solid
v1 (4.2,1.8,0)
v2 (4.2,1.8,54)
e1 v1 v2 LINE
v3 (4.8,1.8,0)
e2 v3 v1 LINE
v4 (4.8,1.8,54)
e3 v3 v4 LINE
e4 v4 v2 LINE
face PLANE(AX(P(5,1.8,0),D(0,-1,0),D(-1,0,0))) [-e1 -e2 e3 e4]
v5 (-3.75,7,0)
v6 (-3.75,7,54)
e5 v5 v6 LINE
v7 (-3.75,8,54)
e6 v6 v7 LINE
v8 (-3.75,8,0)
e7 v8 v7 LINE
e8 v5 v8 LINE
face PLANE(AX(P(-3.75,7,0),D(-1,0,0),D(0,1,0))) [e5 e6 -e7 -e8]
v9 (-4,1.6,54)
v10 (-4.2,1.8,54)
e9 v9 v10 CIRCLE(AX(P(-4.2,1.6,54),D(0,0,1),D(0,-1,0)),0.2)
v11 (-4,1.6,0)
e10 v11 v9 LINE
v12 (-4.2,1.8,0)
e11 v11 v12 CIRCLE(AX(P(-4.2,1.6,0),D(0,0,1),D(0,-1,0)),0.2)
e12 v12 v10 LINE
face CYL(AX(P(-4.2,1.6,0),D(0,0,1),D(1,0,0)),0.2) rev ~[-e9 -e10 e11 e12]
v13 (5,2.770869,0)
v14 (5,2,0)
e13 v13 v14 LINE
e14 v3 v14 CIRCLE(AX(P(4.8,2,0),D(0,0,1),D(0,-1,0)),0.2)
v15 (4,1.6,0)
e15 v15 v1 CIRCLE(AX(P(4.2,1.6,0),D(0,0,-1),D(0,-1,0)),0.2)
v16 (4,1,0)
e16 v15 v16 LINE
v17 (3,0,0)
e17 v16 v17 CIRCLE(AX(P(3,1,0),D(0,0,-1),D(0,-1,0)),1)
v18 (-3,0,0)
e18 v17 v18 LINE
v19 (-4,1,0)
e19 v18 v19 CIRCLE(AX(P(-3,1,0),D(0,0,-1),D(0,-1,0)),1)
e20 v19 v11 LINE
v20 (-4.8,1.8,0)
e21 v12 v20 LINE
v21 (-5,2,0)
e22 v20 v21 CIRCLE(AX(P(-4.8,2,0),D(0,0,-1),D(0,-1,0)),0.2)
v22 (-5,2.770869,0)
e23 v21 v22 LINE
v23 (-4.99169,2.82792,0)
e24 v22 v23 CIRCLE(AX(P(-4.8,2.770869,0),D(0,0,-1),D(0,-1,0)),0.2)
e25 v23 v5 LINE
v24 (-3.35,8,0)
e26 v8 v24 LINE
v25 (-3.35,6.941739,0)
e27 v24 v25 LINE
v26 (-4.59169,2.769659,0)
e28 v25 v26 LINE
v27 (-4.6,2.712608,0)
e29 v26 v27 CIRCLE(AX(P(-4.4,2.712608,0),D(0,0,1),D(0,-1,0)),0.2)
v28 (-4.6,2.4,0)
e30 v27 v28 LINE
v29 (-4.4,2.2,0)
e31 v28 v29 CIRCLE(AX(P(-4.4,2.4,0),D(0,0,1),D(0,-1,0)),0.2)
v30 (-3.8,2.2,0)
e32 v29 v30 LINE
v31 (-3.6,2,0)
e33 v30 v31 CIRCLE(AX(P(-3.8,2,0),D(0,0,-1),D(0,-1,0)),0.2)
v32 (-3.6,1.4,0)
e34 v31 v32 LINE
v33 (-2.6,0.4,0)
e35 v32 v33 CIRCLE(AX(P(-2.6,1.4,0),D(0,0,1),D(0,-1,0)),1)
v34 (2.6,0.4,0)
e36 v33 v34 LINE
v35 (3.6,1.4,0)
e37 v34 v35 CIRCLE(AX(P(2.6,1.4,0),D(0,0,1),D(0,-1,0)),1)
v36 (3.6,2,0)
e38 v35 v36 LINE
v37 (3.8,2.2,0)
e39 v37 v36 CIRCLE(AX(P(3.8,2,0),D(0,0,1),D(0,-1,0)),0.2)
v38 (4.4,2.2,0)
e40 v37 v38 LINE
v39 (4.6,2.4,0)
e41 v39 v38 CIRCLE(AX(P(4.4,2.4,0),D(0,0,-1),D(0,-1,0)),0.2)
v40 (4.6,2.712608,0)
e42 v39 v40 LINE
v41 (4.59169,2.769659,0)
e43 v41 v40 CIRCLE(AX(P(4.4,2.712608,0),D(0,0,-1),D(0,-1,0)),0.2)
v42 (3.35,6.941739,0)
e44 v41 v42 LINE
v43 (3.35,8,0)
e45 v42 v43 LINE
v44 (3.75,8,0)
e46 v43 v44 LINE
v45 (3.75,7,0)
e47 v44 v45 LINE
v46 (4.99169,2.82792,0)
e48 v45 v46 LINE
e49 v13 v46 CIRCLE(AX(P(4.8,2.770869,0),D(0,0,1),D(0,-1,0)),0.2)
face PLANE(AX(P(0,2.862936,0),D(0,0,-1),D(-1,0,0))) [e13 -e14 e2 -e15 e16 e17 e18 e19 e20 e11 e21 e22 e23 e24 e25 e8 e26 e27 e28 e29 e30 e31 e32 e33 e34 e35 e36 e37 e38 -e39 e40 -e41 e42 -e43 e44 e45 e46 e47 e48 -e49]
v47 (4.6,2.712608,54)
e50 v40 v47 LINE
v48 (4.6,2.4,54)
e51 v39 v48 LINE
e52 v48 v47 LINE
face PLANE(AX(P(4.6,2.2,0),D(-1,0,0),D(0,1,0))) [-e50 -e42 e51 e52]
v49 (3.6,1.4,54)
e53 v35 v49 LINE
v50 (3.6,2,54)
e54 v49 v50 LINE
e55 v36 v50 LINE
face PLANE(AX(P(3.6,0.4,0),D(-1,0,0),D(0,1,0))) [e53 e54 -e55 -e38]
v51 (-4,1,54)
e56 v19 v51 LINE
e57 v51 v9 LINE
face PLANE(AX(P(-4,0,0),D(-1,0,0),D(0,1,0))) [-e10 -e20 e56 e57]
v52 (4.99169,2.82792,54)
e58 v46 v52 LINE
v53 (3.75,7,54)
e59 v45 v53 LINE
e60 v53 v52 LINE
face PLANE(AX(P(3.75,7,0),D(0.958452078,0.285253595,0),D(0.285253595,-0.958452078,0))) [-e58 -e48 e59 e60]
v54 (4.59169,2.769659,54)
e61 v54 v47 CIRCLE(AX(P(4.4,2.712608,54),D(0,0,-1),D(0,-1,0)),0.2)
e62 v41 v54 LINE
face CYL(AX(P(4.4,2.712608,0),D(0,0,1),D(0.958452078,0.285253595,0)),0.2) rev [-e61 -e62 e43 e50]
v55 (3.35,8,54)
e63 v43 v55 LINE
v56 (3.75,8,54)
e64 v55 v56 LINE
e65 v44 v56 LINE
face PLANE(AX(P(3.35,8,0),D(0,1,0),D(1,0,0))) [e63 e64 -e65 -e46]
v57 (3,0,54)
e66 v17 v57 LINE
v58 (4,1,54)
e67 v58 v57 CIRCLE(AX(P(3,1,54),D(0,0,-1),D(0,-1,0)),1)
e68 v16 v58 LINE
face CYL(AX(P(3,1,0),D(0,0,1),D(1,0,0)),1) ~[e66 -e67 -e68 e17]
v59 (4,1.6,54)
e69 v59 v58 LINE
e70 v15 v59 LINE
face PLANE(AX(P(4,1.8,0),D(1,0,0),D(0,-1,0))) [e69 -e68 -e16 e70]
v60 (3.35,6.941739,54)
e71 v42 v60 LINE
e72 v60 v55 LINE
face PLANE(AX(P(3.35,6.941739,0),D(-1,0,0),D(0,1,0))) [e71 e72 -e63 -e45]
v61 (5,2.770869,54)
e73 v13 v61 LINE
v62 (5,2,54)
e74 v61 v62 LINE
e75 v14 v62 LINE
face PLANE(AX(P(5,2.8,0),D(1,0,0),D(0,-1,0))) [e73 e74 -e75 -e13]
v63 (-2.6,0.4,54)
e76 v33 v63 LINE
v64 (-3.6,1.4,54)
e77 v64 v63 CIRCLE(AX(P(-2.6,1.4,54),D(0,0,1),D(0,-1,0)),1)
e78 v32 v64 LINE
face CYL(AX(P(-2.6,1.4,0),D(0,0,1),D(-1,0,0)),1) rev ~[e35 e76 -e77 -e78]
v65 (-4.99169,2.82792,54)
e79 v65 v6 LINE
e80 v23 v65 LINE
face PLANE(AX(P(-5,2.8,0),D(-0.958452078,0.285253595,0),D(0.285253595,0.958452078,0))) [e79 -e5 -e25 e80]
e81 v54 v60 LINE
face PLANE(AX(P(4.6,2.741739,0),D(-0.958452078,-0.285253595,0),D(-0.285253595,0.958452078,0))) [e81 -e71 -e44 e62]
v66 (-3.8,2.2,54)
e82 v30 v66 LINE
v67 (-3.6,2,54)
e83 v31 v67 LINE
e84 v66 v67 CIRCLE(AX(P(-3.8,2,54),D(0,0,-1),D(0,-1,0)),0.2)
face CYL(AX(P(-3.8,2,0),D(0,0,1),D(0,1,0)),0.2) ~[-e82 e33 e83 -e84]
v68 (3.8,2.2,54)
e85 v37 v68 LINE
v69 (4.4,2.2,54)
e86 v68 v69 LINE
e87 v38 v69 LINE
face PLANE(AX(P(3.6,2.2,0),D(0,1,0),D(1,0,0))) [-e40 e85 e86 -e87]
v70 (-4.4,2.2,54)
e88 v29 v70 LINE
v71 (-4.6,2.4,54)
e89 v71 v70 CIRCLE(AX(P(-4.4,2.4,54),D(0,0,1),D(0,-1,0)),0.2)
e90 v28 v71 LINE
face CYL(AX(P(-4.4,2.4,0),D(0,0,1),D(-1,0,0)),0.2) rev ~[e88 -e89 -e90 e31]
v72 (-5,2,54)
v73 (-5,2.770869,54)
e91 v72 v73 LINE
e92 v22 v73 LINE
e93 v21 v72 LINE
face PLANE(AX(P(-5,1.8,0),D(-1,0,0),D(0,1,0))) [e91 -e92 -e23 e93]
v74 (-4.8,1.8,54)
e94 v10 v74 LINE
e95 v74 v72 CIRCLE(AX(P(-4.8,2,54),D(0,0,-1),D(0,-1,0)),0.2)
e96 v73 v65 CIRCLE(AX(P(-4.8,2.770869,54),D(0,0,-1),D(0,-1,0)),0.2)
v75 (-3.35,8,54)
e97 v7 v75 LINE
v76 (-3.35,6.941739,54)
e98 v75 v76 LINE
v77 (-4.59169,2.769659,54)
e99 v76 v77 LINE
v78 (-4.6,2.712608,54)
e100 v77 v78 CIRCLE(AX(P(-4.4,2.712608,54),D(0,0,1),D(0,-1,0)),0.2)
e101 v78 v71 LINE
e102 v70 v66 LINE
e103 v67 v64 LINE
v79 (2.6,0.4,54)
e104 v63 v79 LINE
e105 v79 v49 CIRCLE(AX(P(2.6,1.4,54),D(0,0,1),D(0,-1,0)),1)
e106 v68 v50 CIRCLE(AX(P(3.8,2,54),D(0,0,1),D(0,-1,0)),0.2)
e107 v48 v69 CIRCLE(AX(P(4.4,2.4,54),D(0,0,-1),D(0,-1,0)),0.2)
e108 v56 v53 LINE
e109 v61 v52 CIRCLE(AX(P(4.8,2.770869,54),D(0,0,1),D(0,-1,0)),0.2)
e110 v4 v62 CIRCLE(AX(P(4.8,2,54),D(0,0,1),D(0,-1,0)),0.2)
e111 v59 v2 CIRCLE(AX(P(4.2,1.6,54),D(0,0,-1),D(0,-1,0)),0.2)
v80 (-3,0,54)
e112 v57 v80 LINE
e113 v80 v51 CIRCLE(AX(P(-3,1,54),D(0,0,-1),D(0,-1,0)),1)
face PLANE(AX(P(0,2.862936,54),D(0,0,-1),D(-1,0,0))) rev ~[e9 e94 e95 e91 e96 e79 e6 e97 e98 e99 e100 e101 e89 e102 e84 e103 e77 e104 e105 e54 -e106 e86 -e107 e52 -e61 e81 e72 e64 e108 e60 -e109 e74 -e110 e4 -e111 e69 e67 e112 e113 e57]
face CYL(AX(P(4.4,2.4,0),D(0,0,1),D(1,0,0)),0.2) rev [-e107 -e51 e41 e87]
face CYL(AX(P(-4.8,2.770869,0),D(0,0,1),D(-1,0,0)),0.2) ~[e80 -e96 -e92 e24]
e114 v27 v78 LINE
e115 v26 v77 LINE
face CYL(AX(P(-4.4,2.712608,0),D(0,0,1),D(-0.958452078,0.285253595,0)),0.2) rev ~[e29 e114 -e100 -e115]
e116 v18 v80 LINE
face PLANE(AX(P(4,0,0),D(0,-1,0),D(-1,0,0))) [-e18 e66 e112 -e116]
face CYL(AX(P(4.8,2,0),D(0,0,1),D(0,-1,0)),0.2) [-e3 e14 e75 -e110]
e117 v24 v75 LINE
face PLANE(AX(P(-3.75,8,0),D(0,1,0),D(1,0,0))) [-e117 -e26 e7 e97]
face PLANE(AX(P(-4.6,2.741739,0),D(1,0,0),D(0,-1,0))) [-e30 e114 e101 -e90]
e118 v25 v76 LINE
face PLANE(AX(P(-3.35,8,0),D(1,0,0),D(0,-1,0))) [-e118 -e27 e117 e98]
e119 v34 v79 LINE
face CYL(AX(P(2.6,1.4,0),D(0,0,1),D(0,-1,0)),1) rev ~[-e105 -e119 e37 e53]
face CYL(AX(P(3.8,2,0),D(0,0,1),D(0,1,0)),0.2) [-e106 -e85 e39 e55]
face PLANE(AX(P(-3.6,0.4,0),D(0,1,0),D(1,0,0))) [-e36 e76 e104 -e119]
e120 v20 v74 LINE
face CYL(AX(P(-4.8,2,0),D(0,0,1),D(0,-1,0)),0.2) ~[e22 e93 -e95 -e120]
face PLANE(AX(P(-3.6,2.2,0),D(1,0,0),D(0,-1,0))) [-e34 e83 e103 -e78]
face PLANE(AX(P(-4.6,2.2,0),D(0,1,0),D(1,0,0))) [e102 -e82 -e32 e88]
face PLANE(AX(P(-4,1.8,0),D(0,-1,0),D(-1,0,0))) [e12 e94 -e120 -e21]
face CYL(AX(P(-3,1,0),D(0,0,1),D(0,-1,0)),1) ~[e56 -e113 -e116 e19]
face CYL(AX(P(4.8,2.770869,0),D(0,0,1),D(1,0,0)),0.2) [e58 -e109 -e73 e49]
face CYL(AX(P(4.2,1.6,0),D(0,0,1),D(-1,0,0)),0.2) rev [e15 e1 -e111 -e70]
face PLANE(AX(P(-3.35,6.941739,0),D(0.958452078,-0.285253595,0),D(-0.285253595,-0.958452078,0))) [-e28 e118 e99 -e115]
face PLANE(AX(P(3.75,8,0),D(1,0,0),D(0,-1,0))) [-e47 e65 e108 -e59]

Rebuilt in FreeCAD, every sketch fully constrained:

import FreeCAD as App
import Part
import Sketcher

V = App.Vector
Q = App.Units.Quantity


def edges_at(feature, points):
    """Names of the edges that pass closest to the given points."""
    edges = feature.Shape.Edges
    near = lambda p: min(range(len(edges)), key=lambda i: edges[i].distToShape(Part.Vertex(*p))[0])
    return sorted({f"Edge{near(p) + 1}" for p in points})

doc = App.newDocument("Part")
params = doc.addObject("Spreadsheet::Sheet", "Params")
for row, (alias, value) in enumerate([
    ("sketch1_width", "1 mm"),
    ("sketch1_width2", "8 mm"),
    ("sketch1_width3", "0.4 mm"),
    ("sketch1_height", "1.8 mm"),
    ("pad1_length", "54 mm"),
    ("fillet_radius", "1 mm"),
    ("fillet2_radius", "0.2 mm"),
], start=1):
    params.set(f"A{row}", alias)
    params.set(f"B{row}", "=" + value)
    params.setAlias(f"B{row}", alias)

body = doc.addObject("PartDesign::Body", "Body")

# Sketch on XY plane
sketch1 = body.newObject("Sketcher::SketchObject", "Sketch")
sketch1.AttachmentSupport = (doc.getObject("XY_Plane"), [""])
sketch1.MapMode = "FlatFace"
sketch1.addGeometry(Part.LineSegment(V(3.75, 7, 0), V(3.75, 8, 0)), False)
sketch1.addGeometry(Part.LineSegment(V(3.75, 8, 0), V(3.35, 8, 0)), False)
sketch1.addGeometry(Part.LineSegment(V(3.35, 8, 0), V(3.35, 6.94, 0)), False)
sketch1.addGeometry(Part.LineSegment(V(3.35, 6.94, 0), V(4.6, 2.74, 0)), False)
sketch1.addGeometry(Part.LineSegment(V(4.6, 2.74, 0), V(4.6, 2.2, 0)), False)
sketch1.addGeometry(Part.LineSegment(V(4.6, 2.2, 0), V(3.6, 2.2, 0)), False)
sketch1.addGeometry(Part.LineSegment(V(3.6, 2.2, 0), V(3.6, 0.4, 0)), False)
sketch1.addGeometry(Part.LineSegment(V(3.6, 0.4, 0), V(-3.6, 0.4, 0)), False)
sketch1.addGeometry(Part.LineSegment(V(-3.6, 0.4, 0), V(-3.6, 2.2, 0)), False)
sketch1.addGeometry(Part.LineSegment(V(-3.6, 2.2, 0), V(-4.6, 2.2, 0)), False)
sketch1.addGeometry(Part.LineSegment(V(-4.6, 2.2, 0), V(-4.6, 2.74, 0)), False)
sketch1.addGeometry(Part.LineSegment(V(-4.6, 2.74, 0), V(-3.35, 6.94, 0)), False)
sketch1.addGeometry(Part.LineSegment(V(-3.35, 6.94, 0), V(-3.35, 8, 0)), False)
sketch1.addGeometry(Part.LineSegment(V(-3.35, 8, 0), V(-3.75, 8, 0)), False)
sketch1.addGeometry(Part.LineSegment(V(-3.75, 8, 0), V(-3.75, 7, 0)), False)
sketch1.addGeometry(Part.LineSegment(V(-3.75, 7, 0), V(-5, 2.8, 0)), False)
sketch1.addGeometry(Part.LineSegment(V(-5, 2.8, 0), V(-5, 1.8, 0)), False)
sketch1.addGeometry(Part.LineSegment(V(-5, 1.8, 0), V(-4, 1.8, 0)), False)
sketch1.addGeometry(Part.LineSegment(V(-4, 1.8, 0), V(-4, 0, 0)), False)
sketch1.addGeometry(Part.LineSegment(V(-4, 0, 0), V(4, 0, 0)), False)
sketch1.addGeometry(Part.LineSegment(V(4, 0, 0), V(4, 1.8, 0)), False)
sketch1.addGeometry(Part.LineSegment(V(4, 1.8, 0), V(5, 1.8, 0)), False)
sketch1.addGeometry(Part.LineSegment(V(5, 1.8, 0), V(5, 2.8, 0)), False)
sketch1.addGeometry(Part.LineSegment(V(5, 2.8, 0), V(3.75, 7, 0)), False)
sketch1.addConstraint(Sketcher.Constraint("Coincident", 0, 2, 1, 1))
sketch1.addConstraint(Sketcher.Constraint("Coincident", 1, 2, 2, 1))
sketch1.addConstraint(Sketcher.Constraint("Coincident", 2, 2, 3, 1))
sketch1.addConstraint(Sketcher.Constraint("Coincident", 3, 2, 4, 1))
sketch1.addConstraint(Sketcher.Constraint("Coincident", 4, 2, 5, 1))
sketch1.addConstraint(Sketcher.Constraint("Coincident", 5, 2, 6, 1))
sketch1.addConstraint(Sketcher.Constraint("Coincident", 6, 2, 7, 1))
sketch1.addConstraint(Sketcher.Constraint("Coincident", 7, 2, 8, 1))
sketch1.addConstraint(Sketcher.Constraint("Coincident", 8, 2, 9, 1))
sketch1.addConstraint(Sketcher.Constraint("Coincident", 9, 2, 10, 1))
sketch1.addConstraint(Sketcher.Constraint("Coincident", 10, 2, 11, 1))
sketch1.addConstraint(Sketcher.Constraint("Coincident", 11, 2, 12, 1))
sketch1.addConstraint(Sketcher.Constraint("Coincident", 12, 2, 13, 1))
sketch1.addConstraint(Sketcher.Constraint("Coincident", 13, 2, 14, 1))
sketch1.addConstraint(Sketcher.Constraint("Coincident", 14, 2, 15, 1))
sketch1.addConstraint(Sketcher.Constraint("Coincident", 15, 2, 16, 1))
sketch1.addConstraint(Sketcher.Constraint("Coincident", 16, 2, 17, 1))
sketch1.addConstraint(Sketcher.Constraint("Coincident", 17, 2, 18, 1))
sketch1.addConstraint(Sketcher.Constraint("Coincident", 18, 2, 19, 1))
sketch1.addConstraint(Sketcher.Constraint("Coincident", 19, 2, 20, 1))
sketch1.addConstraint(Sketcher.Constraint("Coincident", 20, 2, 21, 1))
sketch1.addConstraint(Sketcher.Constraint("Coincident", 21, 2, 22, 1))
sketch1.addConstraint(Sketcher.Constraint("Coincident", 22, 2, 23, 1))
sketch1.addConstraint(Sketcher.Constraint("Coincident", 23, 2, 0, 1))
sketch1.addConstraint(Sketcher.Constraint("Vertical", 0))
sketch1.addConstraint(Sketcher.Constraint("Horizontal", 1))
sketch1.addConstraint(Sketcher.Constraint("Vertical", 2))
sketch1.addConstraint(Sketcher.Constraint("Vertical", 4))
sketch1.addConstraint(Sketcher.Constraint("Horizontal", 5))
sketch1.addConstraint(Sketcher.Constraint("Vertical", 6))
sketch1.addConstraint(Sketcher.Constraint("Horizontal", 7))
sketch1.addConstraint(Sketcher.Constraint("Vertical", 8))
sketch1.addConstraint(Sketcher.Constraint("Horizontal", 9))
sketch1.addConstraint(Sketcher.Constraint("Vertical", 10))
sketch1.addConstraint(Sketcher.Constraint("Vertical", 12))
sketch1.addConstraint(Sketcher.Constraint("Horizontal", 13))
sketch1.addConstraint(Sketcher.Constraint("Vertical", 14))
sketch1.addConstraint(Sketcher.Constraint("Vertical", 16))
sketch1.addConstraint(Sketcher.Constraint("Horizontal", 17))
sketch1.addConstraint(Sketcher.Constraint("Vertical", 18))
sketch1.addConstraint(Sketcher.Constraint("Horizontal", 19))
sketch1.addConstraint(Sketcher.Constraint("Vertical", 20))
sketch1.addConstraint(Sketcher.Constraint("Horizontal", 21))
sketch1.addConstraint(Sketcher.Constraint("Vertical", 22))
sketch1.addConstraint(Sketcher.Constraint("Symmetric", 18, 2, 19, 2, -1, 1))
sketch1.addConstraint(Sketcher.Constraint("Symmetric", 5, 2, 8, 2, -2))
sketch1.addConstraint(Sketcher.Constraint("Symmetric", 3, 2, 10, 2, -2))
sketch1.addConstraint(Sketcher.Constraint("Symmetric", 2, 2, 11, 2, -2))
sketch1.addConstraint(Sketcher.Constraint("Symmetric", 0, 2, 13, 2, -2))
sketch1.addConstraint(Sketcher.Constraint("Symmetric", 16, 2, 21, 2, -2))
sketch1.addConstraint(Sketcher.Constraint("Parallel", 11, 15))
sketch1.addConstraint(Sketcher.Constraint("Parallel", 3, 23))
sketch1.addConstraint(Sketcher.Constraint("Horizontal", 15, 2, 22, 2))
sketch1.addConstraint(Sketcher.Constraint("Equal", 9, 17))
sketch1.addConstraint(Sketcher.Constraint("Equal", 21, 0))
sketch1.addConstraint(Sketcher.Constraint("Equal", 14, 16))
sketch1.addConstraint(Sketcher.Constraint("Equal", 8, 18))
sketch1.addConstraint(Sketcher.Constraint("Equal", 11, 15))
sketch1.addConstraint(Sketcher.Constraint("DistanceX", 5, 2, 5, 1, Q("1 mm")))
sketch1.addConstraint(Sketcher.Constraint("DistanceX", 19, 1, 19, 2, Q("8 mm")))
sketch1.addConstraint(Sketcher.Constraint("DistanceX", 1, 2, 1, 1, Q("0.4 mm")))
sketch1.addConstraint(Sketcher.Constraint("DistanceY", 6, 2, 6, 1, Q("1.8 mm")))
sketch1.addConstraint(Sketcher.Constraint("DistanceY", -1, 1, 0, 2, Q("8 mm")))
sketch1.addConstraint(Sketcher.Constraint("DistanceY", -1, 1, 4, 2, Q("2.2 mm")))
sketch1.addConstraint(Sketcher.Constraint("DistanceX", 11, 2, 2, 2, Q("6.7 mm")))
sketch1.addConstraint(Sketcher.Constraint("DistanceY", 2, 2, 2, 1, Q("1.058261 mm")))
sketch1.setExpression("Constraints[58]", "Params.sketch1_width")
sketch1.setExpression("Constraints[59]", "Params.sketch1_width2")
sketch1.setExpression("Constraints[60]", "Params.sketch1_width3")
sketch1.setExpression("Constraints[61]", "Params.sketch1_height")
pad1 = body.newObject("PartDesign::Pad", "Pad")
pad1.Profile = sketch1
pad1.setExpression("Length", "Params.pad1_length")
doc.recompute()

fillet = body.newObject("PartDesign::Fillet", "Fillet")
fillet.Base = (pad1, edges_at(pad1, [
    (4, 0, 27),
    (-4, 0, 27),
    (-3.6, 0.4, 27),
    (3.6, 0.4, 27),
]))
fillet.setExpression("Radius", "Params.fillet_radius")
doc.recompute()

fillet2 = body.newObject("PartDesign::Fillet", "Fillet001")
fillet2.Base = (fillet, edges_at(fillet, [
    (5, 2.8, 27),
    (5, 1.8, 27),
    (4, 1.8, 27),
    (-4, 1.8, 27),
    (-5, 1.8, 27),
    (-5, 2.8, 27),
    (-4.6, 2.742, 27),
    (-4.6, 2.2, 27),
    (-3.6, 2.2, 27),
    (3.6, 2.2, 27),
    (4.6, 2.2, 27),
    (4.6, 2.742, 27),
]))
fillet2.setExpression("Radius", "Params.fillet2_radius")

doc.recompute()
